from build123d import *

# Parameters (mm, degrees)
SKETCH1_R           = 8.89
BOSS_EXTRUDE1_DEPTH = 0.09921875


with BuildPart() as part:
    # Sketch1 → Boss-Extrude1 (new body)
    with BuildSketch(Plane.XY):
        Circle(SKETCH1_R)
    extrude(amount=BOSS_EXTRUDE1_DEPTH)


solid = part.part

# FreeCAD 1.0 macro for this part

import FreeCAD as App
import Part
import Sketcher
Q = App.Units.Quantity

doc = App.newDocument("Part")
params = doc.addObject("Spreadsheet::Sheet", "Params")
for row, (alias, value) in enumerate([
    ("sketch1_diameter", "0.7 in"),
    ("pad1_length", "0.099219 mm"),
], start=1):
    params.set(f"A{row}", alias)
    params.set(f"B{row}", "=" + value)
    params.setAlias(f"B{row}", alias)

body = doc.addObject("PartDesign::Body", "Body")

sketch1 = doc.addObject("Sketcher::SketchObject", "Sketch")
body.addObject(sketch1)
sketch1.AttachmentSupport = (doc.XY_Plane, [""])
sketch1.MapMode = "FlatFace"
sketch1.addGeometry(Part.Circle(App.Vector(0, 0, 0), App.Vector(0, 0, 1), 9), False)
sketch1.addConstraint([
    Sketcher.Constraint("Coincident", 0, 3, -1, 1),
    Sketcher.Constraint("Diameter", 0, Q("0.7 in")),
])
sketch1.setExpression("Constraints[1]", "Params.sketch1_diameter")
pad1 = doc.addObject("PartDesign::Pad", "Pad")
body.addObject(pad1)
pad1.Profile = sketch1
pad1.setExpression("Length", "Params.pad1_length")

doc.recompute()
